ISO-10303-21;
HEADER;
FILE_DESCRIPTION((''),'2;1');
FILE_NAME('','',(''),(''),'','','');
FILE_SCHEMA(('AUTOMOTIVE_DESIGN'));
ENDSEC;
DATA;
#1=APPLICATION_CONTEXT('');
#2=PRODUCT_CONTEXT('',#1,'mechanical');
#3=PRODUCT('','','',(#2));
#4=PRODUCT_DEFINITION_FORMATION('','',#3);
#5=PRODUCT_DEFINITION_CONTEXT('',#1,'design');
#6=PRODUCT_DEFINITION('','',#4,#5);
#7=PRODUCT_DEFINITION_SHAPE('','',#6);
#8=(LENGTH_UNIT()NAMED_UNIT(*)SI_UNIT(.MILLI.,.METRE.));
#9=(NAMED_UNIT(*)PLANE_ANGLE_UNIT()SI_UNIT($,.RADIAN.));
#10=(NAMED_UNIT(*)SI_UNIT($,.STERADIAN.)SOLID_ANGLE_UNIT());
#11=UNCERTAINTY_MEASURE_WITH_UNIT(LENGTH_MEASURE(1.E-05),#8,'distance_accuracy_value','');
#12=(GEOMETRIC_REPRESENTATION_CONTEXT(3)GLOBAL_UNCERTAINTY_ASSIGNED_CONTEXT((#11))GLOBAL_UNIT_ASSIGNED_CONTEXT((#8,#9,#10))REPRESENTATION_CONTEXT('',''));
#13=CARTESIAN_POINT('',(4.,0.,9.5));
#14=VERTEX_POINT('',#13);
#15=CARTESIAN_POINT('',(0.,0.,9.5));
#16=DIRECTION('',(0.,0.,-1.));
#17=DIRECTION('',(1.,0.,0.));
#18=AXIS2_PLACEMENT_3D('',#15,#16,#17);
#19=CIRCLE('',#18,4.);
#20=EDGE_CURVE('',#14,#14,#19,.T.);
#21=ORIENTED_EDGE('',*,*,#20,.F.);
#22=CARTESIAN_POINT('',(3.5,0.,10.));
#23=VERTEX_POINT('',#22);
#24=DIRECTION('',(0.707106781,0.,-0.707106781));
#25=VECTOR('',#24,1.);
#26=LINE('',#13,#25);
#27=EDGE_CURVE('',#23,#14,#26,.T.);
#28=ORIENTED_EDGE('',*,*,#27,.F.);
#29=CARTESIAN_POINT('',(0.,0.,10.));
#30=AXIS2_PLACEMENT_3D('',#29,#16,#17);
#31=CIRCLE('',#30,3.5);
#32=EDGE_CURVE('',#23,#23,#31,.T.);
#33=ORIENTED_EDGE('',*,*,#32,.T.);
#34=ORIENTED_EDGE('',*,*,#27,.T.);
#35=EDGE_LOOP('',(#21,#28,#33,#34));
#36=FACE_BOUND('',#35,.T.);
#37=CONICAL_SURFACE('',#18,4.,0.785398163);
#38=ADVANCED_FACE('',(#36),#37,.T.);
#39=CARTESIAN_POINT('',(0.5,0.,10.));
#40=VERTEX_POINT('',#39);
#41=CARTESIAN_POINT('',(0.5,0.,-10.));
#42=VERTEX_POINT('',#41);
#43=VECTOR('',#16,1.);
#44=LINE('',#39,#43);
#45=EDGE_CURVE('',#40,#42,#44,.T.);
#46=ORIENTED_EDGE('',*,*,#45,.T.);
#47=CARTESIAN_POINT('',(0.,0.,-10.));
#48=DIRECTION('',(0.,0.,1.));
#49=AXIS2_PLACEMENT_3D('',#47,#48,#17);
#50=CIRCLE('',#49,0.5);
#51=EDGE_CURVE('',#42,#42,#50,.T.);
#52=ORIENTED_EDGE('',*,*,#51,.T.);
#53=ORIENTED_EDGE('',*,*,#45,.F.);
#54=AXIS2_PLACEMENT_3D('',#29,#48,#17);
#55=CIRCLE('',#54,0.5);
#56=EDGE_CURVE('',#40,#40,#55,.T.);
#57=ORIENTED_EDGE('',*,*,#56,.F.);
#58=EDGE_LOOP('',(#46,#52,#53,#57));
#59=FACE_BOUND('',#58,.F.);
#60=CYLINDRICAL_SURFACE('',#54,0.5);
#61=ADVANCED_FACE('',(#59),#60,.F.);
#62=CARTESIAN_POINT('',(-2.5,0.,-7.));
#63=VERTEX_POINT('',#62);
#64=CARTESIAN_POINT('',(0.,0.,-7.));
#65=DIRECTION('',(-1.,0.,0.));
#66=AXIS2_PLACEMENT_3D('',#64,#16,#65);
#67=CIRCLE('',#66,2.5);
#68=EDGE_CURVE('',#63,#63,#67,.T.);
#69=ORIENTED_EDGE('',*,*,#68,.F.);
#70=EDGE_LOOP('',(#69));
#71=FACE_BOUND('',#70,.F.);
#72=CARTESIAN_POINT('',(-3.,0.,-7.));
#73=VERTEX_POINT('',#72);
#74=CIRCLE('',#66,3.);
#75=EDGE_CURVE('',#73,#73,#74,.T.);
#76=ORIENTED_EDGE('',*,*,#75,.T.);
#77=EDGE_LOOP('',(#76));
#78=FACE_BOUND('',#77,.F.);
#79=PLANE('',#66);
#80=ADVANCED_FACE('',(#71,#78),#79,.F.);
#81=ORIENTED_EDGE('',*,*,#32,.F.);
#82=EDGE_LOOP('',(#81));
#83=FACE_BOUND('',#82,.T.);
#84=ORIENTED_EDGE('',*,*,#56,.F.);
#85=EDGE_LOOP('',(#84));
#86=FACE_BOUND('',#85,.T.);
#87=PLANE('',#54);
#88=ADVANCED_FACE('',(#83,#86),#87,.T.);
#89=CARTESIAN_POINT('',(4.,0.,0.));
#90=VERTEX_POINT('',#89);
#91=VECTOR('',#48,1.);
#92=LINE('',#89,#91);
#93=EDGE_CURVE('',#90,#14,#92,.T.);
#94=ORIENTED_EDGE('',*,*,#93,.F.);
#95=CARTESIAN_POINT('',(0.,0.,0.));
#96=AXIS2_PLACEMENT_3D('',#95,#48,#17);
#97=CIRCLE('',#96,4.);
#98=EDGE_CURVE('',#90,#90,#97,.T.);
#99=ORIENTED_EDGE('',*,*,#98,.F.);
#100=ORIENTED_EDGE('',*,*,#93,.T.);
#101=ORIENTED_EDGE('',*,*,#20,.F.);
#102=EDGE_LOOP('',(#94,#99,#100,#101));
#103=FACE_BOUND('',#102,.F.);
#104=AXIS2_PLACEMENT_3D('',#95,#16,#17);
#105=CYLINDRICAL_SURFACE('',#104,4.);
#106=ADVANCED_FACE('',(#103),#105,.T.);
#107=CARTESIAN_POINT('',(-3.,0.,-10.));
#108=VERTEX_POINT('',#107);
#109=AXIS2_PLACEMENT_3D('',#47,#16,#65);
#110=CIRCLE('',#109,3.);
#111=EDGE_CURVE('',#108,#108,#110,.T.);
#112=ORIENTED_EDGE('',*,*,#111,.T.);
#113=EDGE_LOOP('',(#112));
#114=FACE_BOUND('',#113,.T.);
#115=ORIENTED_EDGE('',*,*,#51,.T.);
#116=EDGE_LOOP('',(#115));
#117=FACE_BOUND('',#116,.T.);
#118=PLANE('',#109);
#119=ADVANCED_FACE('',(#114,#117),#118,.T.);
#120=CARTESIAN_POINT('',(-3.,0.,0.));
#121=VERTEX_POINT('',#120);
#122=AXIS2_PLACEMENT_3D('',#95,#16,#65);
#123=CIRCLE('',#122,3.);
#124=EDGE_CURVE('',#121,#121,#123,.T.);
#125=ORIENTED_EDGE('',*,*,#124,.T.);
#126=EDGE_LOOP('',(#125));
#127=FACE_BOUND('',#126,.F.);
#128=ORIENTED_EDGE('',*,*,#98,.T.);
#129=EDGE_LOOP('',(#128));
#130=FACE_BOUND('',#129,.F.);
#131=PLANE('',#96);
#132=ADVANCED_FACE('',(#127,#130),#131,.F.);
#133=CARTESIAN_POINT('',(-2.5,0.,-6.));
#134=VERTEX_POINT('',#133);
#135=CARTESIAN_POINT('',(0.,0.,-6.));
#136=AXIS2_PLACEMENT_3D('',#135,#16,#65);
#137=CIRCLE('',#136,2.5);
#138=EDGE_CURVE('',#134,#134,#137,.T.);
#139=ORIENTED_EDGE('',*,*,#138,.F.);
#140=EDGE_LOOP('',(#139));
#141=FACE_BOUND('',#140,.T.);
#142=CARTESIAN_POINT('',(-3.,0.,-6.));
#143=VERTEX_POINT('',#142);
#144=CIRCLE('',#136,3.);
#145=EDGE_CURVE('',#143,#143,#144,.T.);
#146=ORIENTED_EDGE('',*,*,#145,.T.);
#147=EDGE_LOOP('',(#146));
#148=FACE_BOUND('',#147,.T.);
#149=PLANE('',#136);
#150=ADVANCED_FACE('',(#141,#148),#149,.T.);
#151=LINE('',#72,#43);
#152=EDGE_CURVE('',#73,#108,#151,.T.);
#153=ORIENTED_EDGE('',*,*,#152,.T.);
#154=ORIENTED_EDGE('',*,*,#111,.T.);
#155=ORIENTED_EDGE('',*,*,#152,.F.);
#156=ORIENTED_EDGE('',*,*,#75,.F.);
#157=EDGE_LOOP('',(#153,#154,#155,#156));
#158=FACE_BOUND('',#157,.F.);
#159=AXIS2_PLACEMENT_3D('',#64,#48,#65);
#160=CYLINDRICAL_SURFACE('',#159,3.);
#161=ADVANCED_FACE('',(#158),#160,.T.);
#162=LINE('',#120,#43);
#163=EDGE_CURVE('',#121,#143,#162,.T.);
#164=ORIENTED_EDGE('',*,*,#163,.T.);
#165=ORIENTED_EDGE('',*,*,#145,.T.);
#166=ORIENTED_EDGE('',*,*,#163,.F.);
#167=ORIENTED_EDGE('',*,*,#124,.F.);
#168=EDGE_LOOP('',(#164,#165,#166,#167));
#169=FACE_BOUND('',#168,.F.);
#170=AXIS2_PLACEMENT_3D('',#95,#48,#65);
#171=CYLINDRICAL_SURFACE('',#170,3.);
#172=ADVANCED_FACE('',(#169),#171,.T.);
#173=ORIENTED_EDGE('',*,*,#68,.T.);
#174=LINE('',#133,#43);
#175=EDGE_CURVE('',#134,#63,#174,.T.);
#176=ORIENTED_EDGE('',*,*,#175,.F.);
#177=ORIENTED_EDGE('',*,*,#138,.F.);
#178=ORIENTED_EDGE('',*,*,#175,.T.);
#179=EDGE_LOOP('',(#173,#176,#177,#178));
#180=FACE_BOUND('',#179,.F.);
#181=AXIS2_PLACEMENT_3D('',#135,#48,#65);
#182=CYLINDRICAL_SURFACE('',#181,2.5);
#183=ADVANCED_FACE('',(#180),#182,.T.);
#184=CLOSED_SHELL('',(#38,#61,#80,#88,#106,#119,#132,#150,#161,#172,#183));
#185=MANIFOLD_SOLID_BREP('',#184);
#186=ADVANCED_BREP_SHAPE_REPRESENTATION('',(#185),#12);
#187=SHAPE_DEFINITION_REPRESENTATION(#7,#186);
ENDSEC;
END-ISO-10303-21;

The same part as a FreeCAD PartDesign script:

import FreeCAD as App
import Part
import Sketcher
Q = App.Units.Quantity


def edges_at(feature, points):
    """Names of the edges that pass closest to the given points."""
    edges = feature.Shape.Edges
    near = lambda p: min(range(len(edges)), key=lambda i: edges[i].distToShape(Part.Vertex(*p))[0])
    return sorted({f"Edge{near(p) + 1}" for p in points})

doc = App.newDocument("Part")
params = doc.addObject("Spreadsheet::Sheet", "Params")
for row, (alias, value) in enumerate([
    ("sketch1_diameter", "8 mm"),
    ("pad1_length", "10 mm"),
    ("sketch2_diameter", "6 mm"),
    ("pad2_length", "6 mm"),
    ("sketch3_diameter", "5 mm"),
    ("pad3_length", "1 mm"),
    ("sketch4_diameter", "6 mm"),
    ("pad4_length", "3 mm"),
    ("sketch5_diameter", "1 mm"),
    ("pocket1_length", "20 mm"),
    ("chamfer_size", "0.5 mm"),
], start=1):
    params.set(f"A{row}", alias)
    params.set(f"B{row}", "=" + value)
    params.setAlias(f"B{row}", alias)

body = doc.addObject("PartDesign::Body", "Body")

# Sketch on XY plane
sketch1 = body.newObject("Sketcher::SketchObject", "Sketch")
sketch1.AttachmentSupport = (doc.getObject("XY_Plane"), [""])
sketch1.MapMode = "FlatFace"
sketch1.addGeometry(Part.Circle(App.Vector(0, 0, 0), App.Vector(0, 0, 1), 4), False)
sketch1.addConstraint(Sketcher.Constraint("Coincident", 0, 3, -1, 1))
sketch1.addConstraint(Sketcher.Constraint("Diameter", 0, Q("8 mm")))
sketch1.setExpression("Constraints[1]", "Params.sketch1_diameter")
pad1 = body.newObject("PartDesign::Pad", "Pad")
pad1.Profile = sketch1
pad1.setExpression("Length", "Params.pad1_length")

# Sketch on XY plane
sketch2 = body.newObject("Sketcher::SketchObject", "Sketch001")
sketch2.AttachmentSupport = (doc.getObject("XY_Plane"), [""])
sketch2.MapMode = "FlatFace"
sketch2.addGeometry(Part.Circle(App.Vector(0, 0, 0), App.Vector(0, 0, 1), 3), False)
sketch2.addConstraint(Sketcher.Constraint("Coincident", 0, 3, -1, 1))
sketch2.addConstraint(Sketcher.Constraint("Diameter", 0, Q("6 mm")))
sketch2.setExpression("Constraints[1]", "Params.sketch2_diameter")
pad2 = body.newObject("PartDesign::Pad", "Pad001")
pad2.Profile = sketch2
pad2.setExpression("Length", "Params.pad2_length")
pad2.Reversed = True

# Sketch on XY plane
sketch3 = body.newObject("Sketcher::SketchObject", "Sketch002")
sketch3.AttachmentSupport = (doc.getObject("XY_Plane"), [""])
sketch3.MapMode = "FlatFace"
sketch3.AttachmentOffset = App.Placement(App.Vector(0, 0, -6), App.Rotation())
sketch3.addGeometry(Part.Circle(App.Vector(0, 0, 0), App.Vector(0, 0, 1), 2.5), False)
sketch3.addConstraint(Sketcher.Constraint("Coincident", 0, 3, -1, 1))
sketch3.addConstraint(Sketcher.Constraint("Diameter", 0, Q("5 mm")))
sketch3.setExpression("Constraints[1]", "Params.sketch3_diameter")
pad3 = body.newObject("PartDesign::Pad", "Pad002")
pad3.Profile = sketch3
pad3.setExpression("Length", "Params.pad3_length")
pad3.Reversed = True

# Sketch on XY plane
sketch4 = body.newObject("Sketcher::SketchObject", "Sketch003")
sketch4.AttachmentSupport = (doc.getObject("XY_Plane"), [""])
sketch4.MapMode = "FlatFace"
sketch4.AttachmentOffset = App.Placement(App.Vector(0, 0, -7), App.Rotation())
sketch4.addGeometry(Part.Circle(App.Vector(0, 0, 0), App.Vector(0, 0, 1), 3), False)
sketch4.addConstraint(Sketcher.Constraint("Coincident", 0, 3, -1, 1))
sketch4.addConstraint(Sketcher.Constraint("Diameter", 0, Q("6 mm")))
sketch4.setExpression("Constraints[1]", "Params.sketch4_diameter")
pad4 = body.newObject("PartDesign::Pad", "Pad003")
pad4.Profile = sketch4
pad4.setExpression("Length", "Params.pad4_length")
pad4.Reversed = True

# Sketch on XY plane
sketch5 = body.newObject("Sketcher::SketchObject", "Sketch004")
sketch5.AttachmentSupport = (doc.getObject("XY_Plane"), [""])
sketch5.MapMode = "FlatFace"
sketch5.AttachmentOffset = App.Placement(App.Vector(0, 0, 10), App.Rotation())
sketch5.addGeometry(Part.Circle(App.Vector(0, 0, 0), App.Vector(0, 0, 1), 0.5), False)
sketch5.addConstraint(Sketcher.Constraint("Coincident", 0, 3, -1, 1))
sketch5.addConstraint(Sketcher.Constraint("Diameter", 0, Q("1 mm")))
sketch5.setExpression("Constraints[1]", "Params.sketch5_diameter")
pocket1 = body.newObject("PartDesign::Pocket", "Pocket")
pocket1.Profile = sketch5
pocket1.setExpression("Length", "Params.pocket1_length")
doc.recompute()

chamfer = body.newObject("PartDesign::Chamfer", "Chamfer")
chamfer.Base = (pocket1, edges_at(pocket1, [(-4, 0, 10)]))
chamfer.setExpression("Size", "Params.chamfer_size")

doc.recompute()
